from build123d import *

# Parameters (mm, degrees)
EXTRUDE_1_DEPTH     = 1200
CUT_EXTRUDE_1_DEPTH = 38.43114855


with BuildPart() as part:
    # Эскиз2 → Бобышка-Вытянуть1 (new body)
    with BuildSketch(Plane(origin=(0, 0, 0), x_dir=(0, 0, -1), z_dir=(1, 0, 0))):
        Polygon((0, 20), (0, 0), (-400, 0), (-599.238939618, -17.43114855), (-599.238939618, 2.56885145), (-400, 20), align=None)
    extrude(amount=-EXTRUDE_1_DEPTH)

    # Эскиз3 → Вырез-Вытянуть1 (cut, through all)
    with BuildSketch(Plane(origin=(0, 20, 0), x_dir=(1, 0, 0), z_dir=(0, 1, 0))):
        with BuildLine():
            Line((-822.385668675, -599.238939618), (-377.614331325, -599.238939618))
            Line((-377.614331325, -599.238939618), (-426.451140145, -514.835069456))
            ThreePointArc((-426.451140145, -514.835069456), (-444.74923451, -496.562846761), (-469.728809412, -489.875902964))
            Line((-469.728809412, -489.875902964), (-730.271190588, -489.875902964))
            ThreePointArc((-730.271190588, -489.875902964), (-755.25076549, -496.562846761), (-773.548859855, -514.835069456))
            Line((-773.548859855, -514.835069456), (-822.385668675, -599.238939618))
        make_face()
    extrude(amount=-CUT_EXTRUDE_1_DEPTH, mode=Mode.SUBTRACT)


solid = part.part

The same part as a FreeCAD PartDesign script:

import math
import FreeCAD as App
import Part
import Sketcher
from FreeCAD import Vector
Q = App.Units.Quantity


def add_polygon(sketch, points):
    """Adds a closed chain of lines whose ends are joined by coincident constraints."""
    first, n = sketch.GeometryCount, len(points)
    for a, b in zip(points, points[1:] + points[:1]):
        sketch.addGeometry(Part.LineSegment(App.Vector(*a, 0), App.Vector(*b, 0)), False)
    for i in range(n):
        sketch.addConstraint(Sketcher.Constraint("Coincident", first + i, 2, first + (i + 1) % n, 1))

doc = App.newDocument("Part")
body = doc.addObject("PartDesign::Body", "Body")

# Sketch on YZ plane
sketch1 = doc.addObject("Sketcher::SketchObject", "Sketch")
body.addObject(sketch1)
sketch1.AttachmentSupport = (doc.YZ_Plane, [""])
sketch1.MapMode = "FlatFace"
add_polygon(sketch1, [(0, 0), (20, 0), (20, 400), (3, 599), (-17, 599), (0, 400)])  # lines 0-5
sketch1.addConstraint([
    Sketcher.Constraint("Horizontal", 0),
    Sketcher.Constraint("Vertical", 1),
    Sketcher.Constraint("Horizontal", 3),
    Sketcher.Constraint("Vertical", 5),
    Sketcher.Constraint("Coincident", 5, 2, -1, 1),
    Sketcher.Constraint("Parallel", 2, 4),
    Sketcher.Constraint("Horizontal", 1, 2, 4, 2),
    Sketcher.Constraint("DistanceX", 0, 1, 0, 2, 20.0),
    Sketcher.Constraint("DistanceY", 1, 1, 1, 2, 400.0),
    Sketcher.Constraint("Angle", 2, Q("95 deg")),
    Sketcher.Constraint("Distance", 2, 200.0),
])
pad1 = doc.addObject("PartDesign::Pad", "Pad")
body.addObject(pad1)
pad1.Profile = sketch1
pad1.Length = 1200
pad1.Reversed = True

# Sketch on XZ plane
sketch2 = doc.addObject("Sketcher::SketchObject", "Sketch001")
body.addObject(sketch2)
sketch2.AttachmentSupport = (doc.XZ_Plane, [""])
sketch2.MapMode = "FlatFace"
sketch2.AttachmentOffset = App.Placement(Vector(0, 0, -20), App.Rotation())
sketch2.addGeometry([
    Part.LineSegment(Vector(-822, 599, 0), Vector(-378, 599, 0)),  # 0
    Part.LineSegment(Vector(-378, 599, 0), Vector(-426, 515, 0)),  # 1
    Part.ArcOfCircle(Part.Circle(Vector(-470, 540, 0), Vector(0, 0, 1), 50), math.radians(-90), math.radians(-30)),  # 2
    Part.LineSegment(Vector(-470, 490, 0), Vector(-730, 490, 0)),  # 3
    Part.ArcOfCircle(Part.Circle(Vector(-730, 540, 0), Vector(0, 0, 1), 50), math.radians(-150), math.radians(-90)),  # 4
    Part.LineSegment(Vector(-774, 515, 0), Vector(-822, 599, 0)),  # 5
], False)
sketch2.addConstraint([
    Sketcher.Constraint("Coincident", 0, 2, 1, 1),
    Sketcher.Constraint("Tangent", 1, 2, 2, 2),
    Sketcher.Constraint("Tangent", 2, 1, 3, 1),
    Sketcher.Constraint("Tangent", 3, 2, 4, 2),
    Sketcher.Constraint("Tangent", 4, 1, 5, 1),
    Sketcher.Constraint("Coincident", 5, 2, 0, 1),
    Sketcher.Constraint("Horizontal", 0),
    Sketcher.Constraint("Horizontal", 3),
    Sketcher.Constraint("Equal", 2, 4),
    Sketcher.Constraint("Horizontal", 1, 2, 4, 1),
    Sketcher.Constraint("Radius", 2, 50.0),
    Sketcher.Constraint("DistanceX", 3, 2, 3, 1, 260.542381),
    Sketcher.Constraint("DistanceX", 0, 1, 0, 2, 444.771337),
    Sketcher.Constraint("DistanceX", 2, 3, -1, 1, 469.728809),
    Sketcher.Constraint("DistanceY", -1, 1, 0, 2, 599.23894),
    Sketcher.Constraint("DistanceX", 1, 2, -1, 1, 426.45114),
])
pocket1 = doc.addObject("PartDesign::Pocket", "Pocket")
body.addObject(pocket1)
pocket1.Profile = sketch2
pocket1.Type = "ThroughAll"
pocket1.Reversed = True

doc.recompute()
